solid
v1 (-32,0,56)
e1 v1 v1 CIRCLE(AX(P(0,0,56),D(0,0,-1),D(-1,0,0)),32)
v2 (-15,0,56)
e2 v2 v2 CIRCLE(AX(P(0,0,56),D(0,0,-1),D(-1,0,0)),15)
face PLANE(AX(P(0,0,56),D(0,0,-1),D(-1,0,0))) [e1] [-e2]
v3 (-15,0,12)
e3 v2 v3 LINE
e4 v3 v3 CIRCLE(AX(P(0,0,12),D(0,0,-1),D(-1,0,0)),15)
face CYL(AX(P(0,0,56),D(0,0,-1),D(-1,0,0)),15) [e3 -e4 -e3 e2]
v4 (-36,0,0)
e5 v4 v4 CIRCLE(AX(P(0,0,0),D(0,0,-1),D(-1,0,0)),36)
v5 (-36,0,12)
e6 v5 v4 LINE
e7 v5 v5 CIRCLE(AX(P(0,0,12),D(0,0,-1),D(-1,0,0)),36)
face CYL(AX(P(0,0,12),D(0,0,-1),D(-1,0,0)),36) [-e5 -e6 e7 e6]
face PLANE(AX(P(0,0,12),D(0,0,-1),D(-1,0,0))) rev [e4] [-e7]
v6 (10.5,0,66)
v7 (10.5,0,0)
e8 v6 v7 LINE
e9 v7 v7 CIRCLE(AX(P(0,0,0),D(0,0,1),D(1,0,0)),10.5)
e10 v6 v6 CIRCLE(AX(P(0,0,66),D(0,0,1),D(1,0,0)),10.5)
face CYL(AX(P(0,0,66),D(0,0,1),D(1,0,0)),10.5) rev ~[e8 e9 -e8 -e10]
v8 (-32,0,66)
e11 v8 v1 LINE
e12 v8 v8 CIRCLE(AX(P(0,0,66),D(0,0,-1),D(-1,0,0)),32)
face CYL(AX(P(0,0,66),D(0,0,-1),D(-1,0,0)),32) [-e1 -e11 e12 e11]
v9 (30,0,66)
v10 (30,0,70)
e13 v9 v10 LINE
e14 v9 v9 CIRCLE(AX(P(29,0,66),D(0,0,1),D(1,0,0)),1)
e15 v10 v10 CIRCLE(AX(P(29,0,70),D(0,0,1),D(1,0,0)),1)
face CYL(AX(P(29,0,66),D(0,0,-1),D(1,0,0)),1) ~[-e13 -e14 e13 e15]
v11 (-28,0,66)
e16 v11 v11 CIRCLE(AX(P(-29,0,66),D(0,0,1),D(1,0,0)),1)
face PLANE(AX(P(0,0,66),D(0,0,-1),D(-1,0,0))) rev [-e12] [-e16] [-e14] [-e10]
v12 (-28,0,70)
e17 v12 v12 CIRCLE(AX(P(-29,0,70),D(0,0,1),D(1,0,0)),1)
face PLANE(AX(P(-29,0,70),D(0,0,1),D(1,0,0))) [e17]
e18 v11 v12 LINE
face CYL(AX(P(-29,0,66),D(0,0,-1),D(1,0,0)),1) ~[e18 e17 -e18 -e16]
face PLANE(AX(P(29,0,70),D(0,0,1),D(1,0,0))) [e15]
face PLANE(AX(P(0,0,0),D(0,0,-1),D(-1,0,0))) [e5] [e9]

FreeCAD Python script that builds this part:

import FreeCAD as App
import Part
import Sketcher


def add_polygon(sketch, points):
    """Adds a closed chain of lines whose ends are joined by coincident constraints."""
    first, n = sketch.GeometryCount, len(points)
    for a, b in zip(points, points[1:] + points[:1]):
        sketch.addGeometry(Part.LineSegment(App.Vector(*a, 0), App.Vector(*b, 0)), False)
    for i in range(n):
        sketch.addConstraint(Sketcher.Constraint("Coincident", first + i, 2, first + (i + 1) % n, 1))

doc = App.newDocument("Part")
body = doc.addObject("PartDesign::Body", "Body")

sketch1 = body.newObject("Sketcher::SketchObject", "Sketch")
sketch1.AttachmentSupport = (doc.getObject("XZ_Plane"), [""])
sketch1.MapMode = "FlatFace"
add_polygon(sketch1, [(-36, 0), (0, 0), (0, 66), (-32, 66), (-32, 56), (-15, 56), (-15, 12), (-36, 12)])
sketch1.addConstraint(Sketcher.Constraint("Horizontal", 0))
sketch1.addConstraint(Sketcher.Constraint("Vertical", 1))
sketch1.addConstraint(Sketcher.Constraint("Horizontal", 2))
sketch1.addConstraint(Sketcher.Constraint("Vertical", 3))
sketch1.addConstraint(Sketcher.Constraint("Horizontal", 4))
sketch1.addConstraint(Sketcher.Constraint("Vertical", 5))
sketch1.addConstraint(Sketcher.Constraint("Horizontal", 6))
sketch1.addConstraint(Sketcher.Constraint("Vertical", 7))
sketch1.addConstraint(Sketcher.Constraint("Coincident", 0, 2, -1, 1))
sketch1.addConstraint(Sketcher.Constraint("DistanceX", 0, 1, 0, 2, 36.0))
sketch1.addConstraint(Sketcher.Constraint("DistanceX", 2, 2, 2, 1, 32.0))
sketch1.addConstraint(Sketcher.Constraint("DistanceX", 4, 1, 4, 2, 17.0))
sketch1.addConstraint(Sketcher.Constraint("DistanceY", 1, 1, 1, 2, 66.0))
sketch1.addConstraint(Sketcher.Constraint("DistanceY", 3, 2, 3, 1, 10.0))
sketch1.addConstraint(Sketcher.Constraint("DistanceY", 5, 2, 5, 1, 44.0))
revolution = body.newObject("PartDesign::Revolution", "Revolution")
revolution.Profile = sketch1
revolution.ReferenceAxis = (sketch1, ["V_Axis"])
revolution.Angle = 360

sketch2 = body.newObject("Sketcher::SketchObject", "Sketch001")
sketch2.AttachmentSupport = (doc.getObject("XY_Plane"), [""])
sketch2.MapMode = "FlatFace"
sketch2.AttachmentOffset = App.Placement(App.Vector(0, 0, 66), App.Rotation())
sketch2.addGeometry(Part.Circle(App.Vector(0, 0, 0), App.Vector(0, 0, 1), 10), False)
sketch2.addConstraint(Sketcher.Constraint("Coincident", 0, 3, -1, 1))
sketch2.addConstraint(Sketcher.Constraint("Diameter", 0, 21.0))
pocket1 = body.newObject("PartDesign::Pocket", "Pocket")
pocket1.Profile = sketch2
pocket1.Type = "ThroughAll"

sketch3 = body.newObject("Sketcher::SketchObject", "Sketch002")
sketch3.AttachmentSupport = (doc.getObject("XY_Plane"), [""])
sketch3.MapMode = "FlatFace"
sketch3.AttachmentOffset = App.Placement(App.Vector(0, 0, 66), App.Rotation())
sketch3.addGeometry(Part.Circle(App.Vector(-29, 0, 0), App.Vector(0, 0, 1), 1), False)
sketch3.addGeometry(Part.Circle(App.Vector(29, 0, 0), App.Vector(0, 0, 1), 1), False)
sketch3.addConstraint(Sketcher.Constraint("Equal", 0, 1))
sketch3.addConstraint(Sketcher.Constraint("Symmetric", 0, 3, 1, 3, -1, 1))
sketch3.addConstraint(Sketcher.Constraint("PointOnObject", 0, 3, -1))
sketch3.addConstraint(Sketcher.Constraint("Diameter", 0, 2.0))
sketch3.addConstraint(Sketcher.Constraint("DistanceX", 0, 3, -1, 1, 29.0))
pad1 = body.newObject("PartDesign::Pad", "Pad")
pad1.Profile = sketch3
pad1.Length = 4

doc.recompute()
